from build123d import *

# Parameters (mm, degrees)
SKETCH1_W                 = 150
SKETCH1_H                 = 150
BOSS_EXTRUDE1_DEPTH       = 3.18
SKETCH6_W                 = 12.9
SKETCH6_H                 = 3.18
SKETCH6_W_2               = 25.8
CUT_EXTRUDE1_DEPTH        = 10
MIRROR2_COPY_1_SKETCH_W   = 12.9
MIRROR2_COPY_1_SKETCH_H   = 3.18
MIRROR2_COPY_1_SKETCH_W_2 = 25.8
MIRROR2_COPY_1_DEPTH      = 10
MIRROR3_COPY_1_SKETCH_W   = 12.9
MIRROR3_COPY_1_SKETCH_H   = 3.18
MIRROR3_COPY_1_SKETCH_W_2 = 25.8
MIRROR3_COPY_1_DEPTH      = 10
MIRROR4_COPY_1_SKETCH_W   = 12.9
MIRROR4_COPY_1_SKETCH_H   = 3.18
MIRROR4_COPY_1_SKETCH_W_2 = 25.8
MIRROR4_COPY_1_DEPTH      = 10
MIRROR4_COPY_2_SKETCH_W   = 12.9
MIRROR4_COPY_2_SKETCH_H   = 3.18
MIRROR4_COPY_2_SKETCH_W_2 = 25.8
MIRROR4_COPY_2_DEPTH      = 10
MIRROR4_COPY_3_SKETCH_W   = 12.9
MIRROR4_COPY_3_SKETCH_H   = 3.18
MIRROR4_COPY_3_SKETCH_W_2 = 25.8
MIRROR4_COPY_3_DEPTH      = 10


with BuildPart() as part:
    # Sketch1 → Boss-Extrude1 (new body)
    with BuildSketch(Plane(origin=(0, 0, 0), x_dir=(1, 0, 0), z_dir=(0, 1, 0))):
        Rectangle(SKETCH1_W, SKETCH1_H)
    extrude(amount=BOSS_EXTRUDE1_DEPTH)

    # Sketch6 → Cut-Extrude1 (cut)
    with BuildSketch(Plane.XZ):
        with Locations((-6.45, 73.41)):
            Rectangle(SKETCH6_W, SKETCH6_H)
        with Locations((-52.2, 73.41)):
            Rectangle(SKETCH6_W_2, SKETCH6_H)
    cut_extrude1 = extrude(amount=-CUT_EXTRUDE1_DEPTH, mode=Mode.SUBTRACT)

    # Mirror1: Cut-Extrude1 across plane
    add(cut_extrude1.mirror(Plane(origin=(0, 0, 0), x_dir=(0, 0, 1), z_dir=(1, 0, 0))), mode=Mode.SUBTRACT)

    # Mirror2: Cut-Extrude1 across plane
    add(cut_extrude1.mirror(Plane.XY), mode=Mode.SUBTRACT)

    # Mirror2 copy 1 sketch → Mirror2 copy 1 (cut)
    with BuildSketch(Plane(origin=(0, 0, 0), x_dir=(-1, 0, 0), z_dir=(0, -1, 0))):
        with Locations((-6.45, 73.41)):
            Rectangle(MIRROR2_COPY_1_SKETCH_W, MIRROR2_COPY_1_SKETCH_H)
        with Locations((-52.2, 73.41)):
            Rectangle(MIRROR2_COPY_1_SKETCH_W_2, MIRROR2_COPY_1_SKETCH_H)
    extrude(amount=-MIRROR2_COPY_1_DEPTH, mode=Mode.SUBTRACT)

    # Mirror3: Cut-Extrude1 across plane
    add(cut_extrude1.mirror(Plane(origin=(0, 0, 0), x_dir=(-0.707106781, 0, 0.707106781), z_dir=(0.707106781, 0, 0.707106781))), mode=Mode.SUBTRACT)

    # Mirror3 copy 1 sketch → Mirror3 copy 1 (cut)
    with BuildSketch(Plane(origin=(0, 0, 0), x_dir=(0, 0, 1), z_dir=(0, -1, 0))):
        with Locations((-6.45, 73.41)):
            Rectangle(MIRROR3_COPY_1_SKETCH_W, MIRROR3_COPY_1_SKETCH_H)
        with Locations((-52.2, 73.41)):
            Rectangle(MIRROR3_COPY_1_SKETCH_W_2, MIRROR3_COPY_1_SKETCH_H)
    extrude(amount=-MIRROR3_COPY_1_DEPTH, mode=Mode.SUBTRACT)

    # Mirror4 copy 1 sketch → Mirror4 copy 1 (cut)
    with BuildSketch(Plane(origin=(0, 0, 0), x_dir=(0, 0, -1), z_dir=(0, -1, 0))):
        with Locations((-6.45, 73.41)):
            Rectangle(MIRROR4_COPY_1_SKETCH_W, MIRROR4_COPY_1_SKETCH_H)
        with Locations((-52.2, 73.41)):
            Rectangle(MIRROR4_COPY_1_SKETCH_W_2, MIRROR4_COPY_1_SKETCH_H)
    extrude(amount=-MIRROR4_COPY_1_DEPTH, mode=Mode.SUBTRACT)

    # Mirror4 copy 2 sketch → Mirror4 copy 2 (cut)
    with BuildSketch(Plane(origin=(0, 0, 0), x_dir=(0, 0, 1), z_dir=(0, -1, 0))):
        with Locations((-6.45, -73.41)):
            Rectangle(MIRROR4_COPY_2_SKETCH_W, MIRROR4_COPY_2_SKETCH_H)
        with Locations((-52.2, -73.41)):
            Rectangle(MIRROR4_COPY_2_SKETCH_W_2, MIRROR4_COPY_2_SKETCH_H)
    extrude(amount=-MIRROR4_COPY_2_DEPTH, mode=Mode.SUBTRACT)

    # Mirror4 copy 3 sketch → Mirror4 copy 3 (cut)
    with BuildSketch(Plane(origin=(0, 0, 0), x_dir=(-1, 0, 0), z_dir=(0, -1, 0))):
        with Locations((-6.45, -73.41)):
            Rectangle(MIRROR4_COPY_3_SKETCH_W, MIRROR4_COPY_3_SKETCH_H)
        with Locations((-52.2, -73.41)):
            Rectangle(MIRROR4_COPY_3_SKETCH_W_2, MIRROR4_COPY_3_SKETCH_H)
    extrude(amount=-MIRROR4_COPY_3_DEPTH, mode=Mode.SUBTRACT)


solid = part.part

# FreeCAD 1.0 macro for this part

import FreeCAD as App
import Part
import Sketcher
from FreeCAD import Vector

doc = App.newDocument("Part")
body = doc.addObject("PartDesign::Body", "Body")

# Sketch on XZ plane
sketch1 = body.newObject("Sketcher::SketchObject", "Sketch")
sketch1.AttachmentSupport = (doc.getObject("XZ_Plane"), [""])
sketch1.MapMode = "FlatFace"
sketch1.addGeometry(Part.LineSegment(Vector(-75, -75, 0), Vector(-75, 75, 0)), False)
sketch1.addGeometry(Part.LineSegment(Vector(-75, 75, 0), Vector(75, 75, 0)), False)
sketch1.addGeometry(Part.LineSegment(Vector(75, 75, 0), Vector(75, -75, 0)), False)
sketch1.addGeometry(Part.LineSegment(Vector(75, -75, 0), Vector(-75, -75, 0)), False)
sketch1.addConstraint(Sketcher.Constraint("Coincident", 0, 2, 1, 1))
sketch1.addConstraint(Sketcher.Constraint("Coincident", 1, 2, 2, 1))
sketch1.addConstraint(Sketcher.Constraint("Coincident", 2, 2, 3, 1))
sketch1.addConstraint(Sketcher.Constraint("Coincident", 3, 2, 0, 1))
sketch1.addConstraint(Sketcher.Constraint("Vertical", 0))
sketch1.addConstraint(Sketcher.Constraint("Horizontal", 1))
sketch1.addConstraint(Sketcher.Constraint("Vertical", 2))
sketch1.addConstraint(Sketcher.Constraint("Horizontal", 3))
sketch1.addConstraint(Sketcher.Constraint("Symmetric", 0, 2, 2, 2, -1, 1))
sketch1.addConstraint(Sketcher.Constraint("Equal", 3, 0))
sketch1.addConstraint(Sketcher.Constraint("DistanceX", 1, 1, 1, 2, 150.0))
pad1 = body.newObject("PartDesign::Pad", "Pad")
pad1.Profile = sketch1
pad1.Length = 3.18
pad1.Reversed = True

# Sketch on XZ plane
sketch2 = body.newObject("Sketcher::SketchObject", "Sketch001")
sketch2.AttachmentSupport = (doc.getObject("XZ_Plane"), [""])
sketch2.MapMode = "FlatFace"
sketch2.addGeometry(Part.LineSegment(Vector(-12.9, 75, 0), Vector(-12.9, 71.8, 0)), False)
sketch2.addGeometry(Part.LineSegment(Vector(-12.9, 71.8, 0), Vector(0, 71.8, 0)), False)
sketch2.addGeometry(Part.LineSegment(Vector(0, 71.8, 0), Vector(0, 75, 0)), False)
sketch2.addGeometry(Part.LineSegment(Vector(0, 75, 0), Vector(-12.9, 75, 0)), False)
sketch2.addGeometry(Part.LineSegment(Vector(-65.1, 75, 0), Vector(-65.1, 71.8, 0)), False)
sketch2.addGeometry(Part.LineSegment(Vector(-65.1, 71.8, 0), Vector(-39.3, 71.8, 0)), False)
sketch2.addGeometry(Part.LineSegment(Vector(-39.3, 71.8, 0), Vector(-39.3, 75, 0)), False)
sketch2.addGeometry(Part.LineSegment(Vector(-39.3, 75, 0), Vector(-65.1, 75, 0)), False)
sketch2.addConstraint(Sketcher.Constraint("Coincident", 0, 2, 1, 1))
sketch2.addConstraint(Sketcher.Constraint("Coincident", 1, 2, 2, 1))
sketch2.addConstraint(Sketcher.Constraint("Coincident", 2, 2, 3, 1))
sketch2.addConstraint(Sketcher.Constraint("Coincident", 3, 2, 0, 1))
sketch2.addConstraint(Sketcher.Constraint("Coincident", 4, 2, 5, 1))
sketch2.addConstraint(Sketcher.Constraint("Coincident", 5, 2, 6, 1))
sketch2.addConstraint(Sketcher.Constraint("Coincident", 6, 2, 7, 1))
sketch2.addConstraint(Sketcher.Constraint("Coincident", 7, 2, 4, 1))
sketch2.addConstraint(Sketcher.Constraint("Vertical", 0))
sketch2.addConstraint(Sketcher.Constraint("Horizontal", 1))
sketch2.addConstraint(Sketcher.Constraint("Vertical", 2))
sketch2.addConstraint(Sketcher.Constraint("Horizontal", 3))
sketch2.addConstraint(Sketcher.Constraint("Vertical", 4))
sketch2.addConstraint(Sketcher.Constraint("Horizontal", 5))
sketch2.addConstraint(Sketcher.Constraint("Vertical", 6))
sketch2.addConstraint(Sketcher.Constraint("Horizontal", 7))
sketch2.addConstraint(Sketcher.Constraint("PointOnObject", 1, 2, -2))
sketch2.addConstraint(Sketcher.Constraint("Horizontal", 1, 2, 4, 2))
sketch2.addConstraint(Sketcher.Constraint("Horizontal", 3, 2, 6, 2))
sketch2.addConstraint(Sketcher.Constraint("DistanceX", 1, 1, 1, 2, 12.9))
sketch2.addConstraint(Sketcher.Constraint("DistanceX", 5, 1, 5, 2, 25.8))
sketch2.addConstraint(Sketcher.Constraint("DistanceY", -1, 1, 2, 2, 75.0))
sketch2.addConstraint(Sketcher.Constraint("DistanceY", 0, 2, 0, 1, 3.18))
sketch2.addConstraint(Sketcher.Constraint("DistanceX", 4, 2, -1, 1, 65.1))
pocket1 = body.newObject("PartDesign::Pocket", "Pocket")
pocket1.Profile = sketch2
pocket1.Length = 10
doc.recompute()

mirrored = body.newObject("PartDesign::Mirrored", "Mirrored")
mirrored.Originals = [pocket1]
mirrored.MirrorPlane = (doc.getObject("YZ_Plane"), [""])
body.Tip = mirrored
doc.recompute()

mirrored2 = body.newObject("PartDesign::Mirrored", "Mirrored001")
mirrored2.Originals = [pocket1]
mirrored2.MirrorPlane = (doc.getObject("XY_Plane"), [""])
body.Tip = mirrored2

# Sketch on XZ plane
sketch3 = body.newObject("Sketcher::SketchObject", "Sketch002")
sketch3.AttachmentSupport = (doc.getObject("XZ_Plane"), [""])
sketch3.MapMode = "FlatFace"
sketch3.addGeometry(Part.LineSegment(Vector(12.9, -75, 0), Vector(12.9, -71.8, 0)), False)
sketch3.addGeometry(Part.LineSegment(Vector(12.9, -71.8, 0), Vector(0, -71.8, 0)), False)
sketch3.addGeometry(Part.LineSegment(Vector(0, -71.8, 0), Vector(0, -75, 0)), False)
sketch3.addGeometry(Part.LineSegment(Vector(0, -75, 0), Vector(12.9, -75, 0)), False)
sketch3.addGeometry(Part.LineSegment(Vector(65.1, -75, 0), Vector(65.1, -71.8, 0)), False)
sketch3.addGeometry(Part.LineSegment(Vector(65.1, -71.8, 0), Vector(39.3, -71.8, 0)), False)
sketch3.addGeometry(Part.LineSegment(Vector(39.3, -71.8, 0), Vector(39.3, -75, 0)), False)
sketch3.addGeometry(Part.LineSegment(Vector(39.3, -75, 0), Vector(65.1, -75, 0)), False)
sketch3.addConstraint(Sketcher.Constraint("Coincident", 0, 2, 1, 1))
sketch3.addConstraint(Sketcher.Constraint("Coincident", 1, 2, 2, 1))
sketch3.addConstraint(Sketcher.Constraint("Coincident", 2, 2, 3, 1))
sketch3.addConstraint(Sketcher.Constraint("Coincident", 3, 2, 0, 1))
sketch3.addConstraint(Sketcher.Constraint("Coincident", 4, 2, 5, 1))
sketch3.addConstraint(Sketcher.Constraint("Coincident", 5, 2, 6, 1))
sketch3.addConstraint(Sketcher.Constraint("Coincident", 6, 2, 7, 1))
sketch3.addConstraint(Sketcher.Constraint("Coincident", 7, 2, 4, 1))
sketch3.addConstraint(Sketcher.Constraint("Vertical", 0))
sketch3.addConstraint(Sketcher.Constraint("Horizontal", 1))
sketch3.addConstraint(Sketcher.Constraint("Vertical", 2))
sketch3.addConstraint(Sketcher.Constraint("Horizontal", 3))
sketch3.addConstraint(Sketcher.Constraint("Vertical", 4))
sketch3.addConstraint(Sketcher.Constraint("Horizontal", 5))
sketch3.addConstraint(Sketcher.Constraint("Vertical", 6))
sketch3.addConstraint(Sketcher.Constraint("Horizontal", 7))
sketch3.addConstraint(Sketcher.Constraint("PointOnObject", 1, 2, -2))
sketch3.addConstraint(Sketcher.Constraint("Horizontal", 1, 2, 4, 2))
sketch3.addConstraint(Sketcher.Constraint("Horizontal", 3, 2, 6, 2))
sketch3.addConstraint(Sketcher.Constraint("DistanceX", 1, 2, 1, 1, 12.9))
sketch3.addConstraint(Sketcher.Constraint("DistanceX", 5, 2, 5, 1, 25.8))
sketch3.addConstraint(Sketcher.Constraint("DistanceY", 2, 2, -1, 1, 75.0))
sketch3.addConstraint(Sketcher.Constraint("DistanceY", 0, 1, 0, 2, 3.18))
sketch3.addConstraint(Sketcher.Constraint("DistanceX", -1, 1, 4, 2, 65.1))
pocket2 = body.newObject("PartDesign::Pocket", "Pocket001")
pocket2.Profile = sketch3
pocket2.Length = 10
doc.recompute()

datumplane = body.newObject("PartDesign::Plane", "DatumPlane")
datumplane.Placement = App.Placement(Vector(0, 0, 0), App.Rotation(Vector(-0.707106781, 0, 0.707106781), Vector(0, -1, 0), Vector(0.707106781, 0, 0.707106781), "ZXY"))
mirrored3 = body.newObject("PartDesign::Mirrored", "Mirrored002")
mirrored3.Originals = [pocket1]
mirrored3.MirrorPlane = (datumplane, [""])
body.Tip = mirrored3

# Sketch on XZ plane
sketch4 = body.newObject("Sketcher::SketchObject", "Sketch003")
sketch4.AttachmentSupport = (doc.getObject("XZ_Plane"), [""])
sketch4.MapMode = "FlatFace"
sketch4.addGeometry(Part.LineSegment(Vector(-75, -12.9, 0), Vector(-71.8, -12.9, 0)), False)
sketch4.addGeometry(Part.LineSegment(Vector(-71.8, -12.9, 0), Vector(-71.8, 0, 0)), False)
sketch4.addGeometry(Part.LineSegment(Vector(-71.8, 0, 0), Vector(-75, 0, 0)), False)
sketch4.addGeometry(Part.LineSegment(Vector(-75, 0, 0), Vector(-75, -12.9, 0)), False)
sketch4.addGeometry(Part.LineSegment(Vector(-75, -65.1, 0), Vector(-71.8, -65.1, 0)), False)
sketch4.addGeometry(Part.LineSegment(Vector(-71.8, -65.1, 0), Vector(-71.8, -39.3, 0)), False)
sketch4.addGeometry(Part.LineSegment(Vector(-71.8, -39.3, 0), Vector(-75, -39.3, 0)), False)
sketch4.addGeometry(Part.LineSegment(Vector(-75, -39.3, 0), Vector(-75, -65.1, 0)), False)
sketch4.addConstraint(Sketcher.Constraint("Coincident", 0, 2, 1, 1))
sketch4.addConstraint(Sketcher.Constraint("Coincident", 1, 2, 2, 1))
sketch4.addConstraint(Sketcher.Constraint("Coincident", 2, 2, 3, 1))
sketch4.addConstraint(Sketcher.Constraint("Coincident", 3, 2, 0, 1))
sketch4.addConstraint(Sketcher.Constraint("Coincident", 4, 2, 5, 1))
sketch4.addConstraint(Sketcher.Constraint("Coincident", 5, 2, 6, 1))
sketch4.addConstraint(Sketcher.Constraint("Coincident", 6, 2, 7, 1))
sketch4.addConstraint(Sketcher.Constraint("Coincident", 7, 2, 4, 1))
sketch4.addConstraint(Sketcher.Constraint("Horizontal", 0))
sketch4.addConstraint(Sketcher.Constraint("Vertical", 1))
sketch4.addConstraint(Sketcher.Constraint("Horizontal", 2))
sketch4.addConstraint(Sketcher.Constraint("Vertical", 3))
sketch4.addConstraint(Sketcher.Constraint("Horizontal", 4))
sketch4.addConstraint(Sketcher.Constraint("Vertical", 5))
sketch4.addConstraint(Sketcher.Constraint("Horizontal", 6))
sketch4.addConstraint(Sketcher.Constraint("Vertical", 7))
sketch4.addConstraint(Sketcher.Constraint("PointOnObject", 1, 2, -1))
sketch4.addConstraint(Sketcher.Constraint("Vertical", 1, 2, 4, 2))
sketch4.addConstraint(Sketcher.Constraint("Vertical", 3, 2, 6, 2))
sketch4.addConstraint(Sketcher.Constraint("DistanceY", 1, 1, 1, 2, 12.9))
sketch4.addConstraint(Sketcher.Constraint("DistanceY", 5, 1, 5, 2, 25.8))
sketch4.addConstraint(Sketcher.Constraint("DistanceX", 2, 2, -1, 1, 75.0))
sketch4.addConstraint(Sketcher.Constraint("DistanceX", 0, 1, 0, 2, 3.18))
sketch4.addConstraint(Sketcher.Constraint("DistanceY", 4, 2, -1, 1, 65.1))
pocket3 = body.newObject("PartDesign::Pocket", "Pocket002")
pocket3.Profile = sketch4
pocket3.Length = 10

# Sketch on XZ plane
sketch5 = body.newObject("Sketcher::SketchObject", "Sketch004")
sketch5.AttachmentSupport = (doc.getObject("XZ_Plane"), [""])
sketch5.MapMode = "FlatFace"
sketch5.addGeometry(Part.LineSegment(Vector(75, 12.9, 0), Vector(71.8, 12.9, 0)), False)
sketch5.addGeometry(Part.LineSegment(Vector(71.8, 12.9, 0), Vector(71.8, 0, 0)), False)
sketch5.addGeometry(Part.LineSegment(Vector(71.8, 0, 0), Vector(75, 0, 0)), False)
sketch5.addGeometry(Part.LineSegment(Vector(75, 0, 0), Vector(75, 12.9, 0)), False)
sketch5.addGeometry(Part.LineSegment(Vector(75, 65.1, 0), Vector(71.8, 65.1, 0)), False)
sketch5.addGeometry(Part.LineSegment(Vector(71.8, 65.1, 0), Vector(71.8, 39.3, 0)), False)
sketch5.addGeometry(Part.LineSegment(Vector(71.8, 39.3, 0), Vector(75, 39.3, 0)), False)
sketch5.addGeometry(Part.LineSegment(Vector(75, 39.3, 0), Vector(75, 65.1, 0)), False)
sketch5.addConstraint(Sketcher.Constraint("Coincident", 0, 2, 1, 1))
sketch5.addConstraint(Sketcher.Constraint("Coincident", 1, 2, 2, 1))
sketch5.addConstraint(Sketcher.Constraint("Coincident", 2, 2, 3, 1))
sketch5.addConstraint(Sketcher.Constraint("Coincident", 3, 2, 0, 1))
sketch5.addConstraint(Sketcher.Constraint("Coincident", 4, 2, 5, 1))
sketch5.addConstraint(Sketcher.Constraint("Coincident", 5, 2, 6, 1))
sketch5.addConstraint(Sketcher.Constraint("Coincident", 6, 2, 7, 1))
sketch5.addConstraint(Sketcher.Constraint("Coincident", 7, 2, 4, 1))
sketch5.addConstraint(Sketcher.Constraint("Horizontal", 0))
sketch5.addConstraint(Sketcher.Constraint("Vertical", 1))
sketch5.addConstraint(Sketcher.Constraint("Horizontal", 2))
sketch5.addConstraint(Sketcher.Constraint("Vertical", 3))
sketch5.addConstraint(Sketcher.Constraint("Horizontal", 4))
sketch5.addConstraint(Sketcher.Constraint("Vertical", 5))
sketch5.addConstraint(Sketcher.Constraint("Horizontal", 6))
sketch5.addConstraint(Sketcher.Constraint("Vertical", 7))
sketch5.addConstraint(Sketcher.Constraint("PointOnObject", 1, 2, -1))
sketch5.addConstraint(Sketcher.Constraint("Vertical", 1, 2, 4, 2))
sketch5.addConstraint(Sketcher.Constraint("Vertical", 3, 2, 6, 2))
sketch5.addConstraint(Sketcher.Constraint("DistanceY", 1, 2, 1, 1, 12.9))
sketch5.addConstraint(Sketcher.Constraint("DistanceY", 5, 2, 5, 1, 25.8))
sketch5.addConstraint(Sketcher.Constraint("DistanceX", -1, 1, 2, 2, 75.0))
sketch5.addConstraint(Sketcher.Constraint("DistanceX", 0, 2, 0, 1, 3.18))
sketch5.addConstraint(Sketcher.Constraint("DistanceY", -1, 1, 4, 2, 65.1))
pocket4 = body.newObject("PartDesign::Pocket", "Pocket003")
pocket4.Profile = sketch5
pocket4.Length = 10

# Sketch on XZ plane
sketch6 = body.newObject("Sketcher::SketchObject", "Sketch005")
sketch6.AttachmentSupport = (doc.getObject("XZ_Plane"), [""])
sketch6.MapMode = "FlatFace"
sketch6.addGeometry(Part.LineSegment(Vector(71.8, -12.9, 0), Vector(75, -12.9, 0)), False)
sketch6.addGeometry(Part.LineSegment(Vector(75, -12.9, 0), Vector(75, 0, 0)), False)
sketch6.addGeometry(Part.LineSegment(Vector(75, 0, 0), Vector(71.8, 0, 0)), False)
sketch6.addGeometry(Part.LineSegment(Vector(71.8, 0, 0), Vector(71.8, -12.9, 0)), False)
sketch6.addGeometry(Part.LineSegment(Vector(71.8, -65.1, 0), Vector(75, -65.1, 0)), False)
sketch6.addGeometry(Part.LineSegment(Vector(75, -65.1, 0), Vector(75, -39.3, 0)), False)
sketch6.addGeometry(Part.LineSegment(Vector(75, -39.3, 0), Vector(71.8, -39.3, 0)), False)
sketch6.addGeometry(Part.LineSegment(Vector(71.8, -39.3, 0), Vector(71.8, -65.1, 0)), False)
sketch6.addConstraint(Sketcher.Constraint("Coincident", 0, 2, 1, 1))
sketch6.addConstraint(Sketcher.Constraint("Coincident", 1, 2, 2, 1))
sketch6.addConstraint(Sketcher.Constraint("Coincident", 2, 2, 3, 1))
sketch6.addConstraint(Sketcher.Constraint("Coincident", 3, 2, 0, 1))
sketch6.addConstraint(Sketcher.Constraint("Coincident", 4, 2, 5, 1))
sketch6.addConstraint(Sketcher.Constraint("Coincident", 5, 2, 6, 1))
sketch6.addConstraint(Sketcher.Constraint("Coincident", 6, 2, 7, 1))
sketch6.addConstraint(Sketcher.Constraint("Coincident", 7, 2, 4, 1))
sketch6.addConstraint(Sketcher.Constraint("Horizontal", 0))
sketch6.addConstraint(Sketcher.Constraint("Vertical", 1))
sketch6.addConstraint(Sketcher.Constraint("Horizontal", 2))
sketch6.addConstraint(Sketcher.Constraint("Vertical", 3))
sketch6.addConstraint(Sketcher.Constraint("Horizontal", 4))
sketch6.addConstraint(Sketcher.Constraint("Vertical", 5))
sketch6.addConstraint(Sketcher.Constraint("Horizontal", 6))
sketch6.addConstraint(Sketcher.Constraint("Vertical", 7))
sketch6.addConstraint(Sketcher.Constraint("PointOnObject", 1, 2, -1))
sketch6.addConstraint(Sketcher.Constraint("Vertical", 1, 2, 4, 2))
sketch6.addConstraint(Sketcher.Constraint("Vertical", 3, 2, 6, 2))
sketch6.addConstraint(Sketcher.Constraint("DistanceY", 1, 1, 1, 2, 12.9))
sketch6.addConstraint(Sketcher.Constraint("DistanceY", 5, 1, 5, 2, 25.8))
sketch6.addConstraint(Sketcher.Constraint("DistanceX", -1, 1, 0, 2, 75.0))
sketch6.addConstraint(Sketcher.Constraint("DistanceX", 0, 1, 0, 2, 3.18))
sketch6.addConstraint(Sketcher.Constraint("DistanceY", 4, 2, -1, 1, 65.1))
pocket5 = body.newObject("PartDesign::Pocket", "Pocket004")
pocket5.Profile = sketch6
pocket5.Length = 10

# Sketch on XZ plane
sketch7 = body.newObject("Sketcher::SketchObject", "Sketch006")
sketch7.AttachmentSupport = (doc.getObject("XZ_Plane"), [""])
sketch7.MapMode = "FlatFace"
sketch7.addGeometry(Part.LineSegment(Vector(12.9, 71.8, 0), Vector(12.9, 75, 0)), False)
sketch7.addGeometry(Part.LineSegment(Vector(12.9, 75, 0), Vector(0, 75, 0)), False)
sketch7.addGeometry(Part.LineSegment(Vector(0, 75, 0), Vector(0, 71.8, 0)), False)
sketch7.addGeometry(Part.LineSegment(Vector(0, 71.8, 0), Vector(12.9, 71.8, 0)), False)
sketch7.addGeometry(Part.LineSegment(Vector(65.1, 71.8, 0), Vector(65.1, 75, 0)), False)
sketch7.addGeometry(Part.LineSegment(Vector(65.1, 75, 0), Vector(39.3, 75, 0)), False)
sketch7.addGeometry(Part.LineSegment(Vector(39.3, 75, 0), Vector(39.3, 71.8, 0)), False)
sketch7.addGeometry(Part.LineSegment(Vector(39.3, 71.8, 0), Vector(65.1, 71.8, 0)), False)
sketch7.addConstraint(Sketcher.Constraint("Coincident", 0, 2, 1, 1))
sketch7.addConstraint(Sketcher.Constraint("Coincident", 1, 2, 2, 1))
sketch7.addConstraint(Sketcher.Constraint("Coincident", 2, 2, 3, 1))
sketch7.addConstraint(Sketcher.Constraint("Coincident", 3, 2, 0, 1))
sketch7.addConstraint(Sketcher.Constraint("Coincident", 4, 2, 5, 1))
sketch7.addConstraint(Sketcher.Constraint("Coincident", 5, 2, 6, 1))
sketch7.addConstraint(Sketcher.Constraint("Coincident", 6, 2, 7, 1))
sketch7.addConstraint(Sketcher.Constraint("Coincident", 7, 2, 4, 1))
sketch7.addConstraint(Sketcher.Constraint("Vertical", 0))
sketch7.addConstraint(Sketcher.Constraint("Horizontal", 1))
sketch7.addConstraint(Sketcher.Constraint("Vertical", 2))
sketch7.addConstraint(Sketcher.Constraint("Horizontal", 3))
sketch7.addConstraint(Sketcher.Constraint("Vertical", 4))
sketch7.addConstraint(Sketcher.Constraint("Horizontal", 5))
sketch7.addConstraint(Sketcher.Constraint("Vertical", 6))
sketch7.addConstraint(Sketcher.Constraint("Horizontal", 7))
sketch7.addConstraint(Sketcher.Constraint("PointOnObject", 1, 2, -2))
sketch7.addConstraint(Sketcher.Constraint("Horizontal", 1, 2, 4, 2))
sketch7.addConstraint(Sketcher.Constraint("Horizontal", 3, 2, 6, 2))
sketch7.addConstraint(Sketcher.Constraint("DistanceX", 1, 2, 1, 1, 12.9))
sketch7.addConstraint(Sketcher.Constraint("DistanceX", 5, 2, 5, 1, 25.8))
sketch7.addConstraint(Sketcher.Constraint("DistanceY", -1, 1, 0, 2, 75.0))
sketch7.addConstraint(Sketcher.Constraint("DistanceY", 0, 1, 0, 2, 3.18))
sketch7.addConstraint(Sketcher.Constraint("DistanceX", -1, 1, 4, 2, 65.1))
pocket6 = body.newObject("PartDesign::Pocket", "Pocket005")
pocket6.Profile = sketch7
pocket6.Length = 10

doc.recompute()
